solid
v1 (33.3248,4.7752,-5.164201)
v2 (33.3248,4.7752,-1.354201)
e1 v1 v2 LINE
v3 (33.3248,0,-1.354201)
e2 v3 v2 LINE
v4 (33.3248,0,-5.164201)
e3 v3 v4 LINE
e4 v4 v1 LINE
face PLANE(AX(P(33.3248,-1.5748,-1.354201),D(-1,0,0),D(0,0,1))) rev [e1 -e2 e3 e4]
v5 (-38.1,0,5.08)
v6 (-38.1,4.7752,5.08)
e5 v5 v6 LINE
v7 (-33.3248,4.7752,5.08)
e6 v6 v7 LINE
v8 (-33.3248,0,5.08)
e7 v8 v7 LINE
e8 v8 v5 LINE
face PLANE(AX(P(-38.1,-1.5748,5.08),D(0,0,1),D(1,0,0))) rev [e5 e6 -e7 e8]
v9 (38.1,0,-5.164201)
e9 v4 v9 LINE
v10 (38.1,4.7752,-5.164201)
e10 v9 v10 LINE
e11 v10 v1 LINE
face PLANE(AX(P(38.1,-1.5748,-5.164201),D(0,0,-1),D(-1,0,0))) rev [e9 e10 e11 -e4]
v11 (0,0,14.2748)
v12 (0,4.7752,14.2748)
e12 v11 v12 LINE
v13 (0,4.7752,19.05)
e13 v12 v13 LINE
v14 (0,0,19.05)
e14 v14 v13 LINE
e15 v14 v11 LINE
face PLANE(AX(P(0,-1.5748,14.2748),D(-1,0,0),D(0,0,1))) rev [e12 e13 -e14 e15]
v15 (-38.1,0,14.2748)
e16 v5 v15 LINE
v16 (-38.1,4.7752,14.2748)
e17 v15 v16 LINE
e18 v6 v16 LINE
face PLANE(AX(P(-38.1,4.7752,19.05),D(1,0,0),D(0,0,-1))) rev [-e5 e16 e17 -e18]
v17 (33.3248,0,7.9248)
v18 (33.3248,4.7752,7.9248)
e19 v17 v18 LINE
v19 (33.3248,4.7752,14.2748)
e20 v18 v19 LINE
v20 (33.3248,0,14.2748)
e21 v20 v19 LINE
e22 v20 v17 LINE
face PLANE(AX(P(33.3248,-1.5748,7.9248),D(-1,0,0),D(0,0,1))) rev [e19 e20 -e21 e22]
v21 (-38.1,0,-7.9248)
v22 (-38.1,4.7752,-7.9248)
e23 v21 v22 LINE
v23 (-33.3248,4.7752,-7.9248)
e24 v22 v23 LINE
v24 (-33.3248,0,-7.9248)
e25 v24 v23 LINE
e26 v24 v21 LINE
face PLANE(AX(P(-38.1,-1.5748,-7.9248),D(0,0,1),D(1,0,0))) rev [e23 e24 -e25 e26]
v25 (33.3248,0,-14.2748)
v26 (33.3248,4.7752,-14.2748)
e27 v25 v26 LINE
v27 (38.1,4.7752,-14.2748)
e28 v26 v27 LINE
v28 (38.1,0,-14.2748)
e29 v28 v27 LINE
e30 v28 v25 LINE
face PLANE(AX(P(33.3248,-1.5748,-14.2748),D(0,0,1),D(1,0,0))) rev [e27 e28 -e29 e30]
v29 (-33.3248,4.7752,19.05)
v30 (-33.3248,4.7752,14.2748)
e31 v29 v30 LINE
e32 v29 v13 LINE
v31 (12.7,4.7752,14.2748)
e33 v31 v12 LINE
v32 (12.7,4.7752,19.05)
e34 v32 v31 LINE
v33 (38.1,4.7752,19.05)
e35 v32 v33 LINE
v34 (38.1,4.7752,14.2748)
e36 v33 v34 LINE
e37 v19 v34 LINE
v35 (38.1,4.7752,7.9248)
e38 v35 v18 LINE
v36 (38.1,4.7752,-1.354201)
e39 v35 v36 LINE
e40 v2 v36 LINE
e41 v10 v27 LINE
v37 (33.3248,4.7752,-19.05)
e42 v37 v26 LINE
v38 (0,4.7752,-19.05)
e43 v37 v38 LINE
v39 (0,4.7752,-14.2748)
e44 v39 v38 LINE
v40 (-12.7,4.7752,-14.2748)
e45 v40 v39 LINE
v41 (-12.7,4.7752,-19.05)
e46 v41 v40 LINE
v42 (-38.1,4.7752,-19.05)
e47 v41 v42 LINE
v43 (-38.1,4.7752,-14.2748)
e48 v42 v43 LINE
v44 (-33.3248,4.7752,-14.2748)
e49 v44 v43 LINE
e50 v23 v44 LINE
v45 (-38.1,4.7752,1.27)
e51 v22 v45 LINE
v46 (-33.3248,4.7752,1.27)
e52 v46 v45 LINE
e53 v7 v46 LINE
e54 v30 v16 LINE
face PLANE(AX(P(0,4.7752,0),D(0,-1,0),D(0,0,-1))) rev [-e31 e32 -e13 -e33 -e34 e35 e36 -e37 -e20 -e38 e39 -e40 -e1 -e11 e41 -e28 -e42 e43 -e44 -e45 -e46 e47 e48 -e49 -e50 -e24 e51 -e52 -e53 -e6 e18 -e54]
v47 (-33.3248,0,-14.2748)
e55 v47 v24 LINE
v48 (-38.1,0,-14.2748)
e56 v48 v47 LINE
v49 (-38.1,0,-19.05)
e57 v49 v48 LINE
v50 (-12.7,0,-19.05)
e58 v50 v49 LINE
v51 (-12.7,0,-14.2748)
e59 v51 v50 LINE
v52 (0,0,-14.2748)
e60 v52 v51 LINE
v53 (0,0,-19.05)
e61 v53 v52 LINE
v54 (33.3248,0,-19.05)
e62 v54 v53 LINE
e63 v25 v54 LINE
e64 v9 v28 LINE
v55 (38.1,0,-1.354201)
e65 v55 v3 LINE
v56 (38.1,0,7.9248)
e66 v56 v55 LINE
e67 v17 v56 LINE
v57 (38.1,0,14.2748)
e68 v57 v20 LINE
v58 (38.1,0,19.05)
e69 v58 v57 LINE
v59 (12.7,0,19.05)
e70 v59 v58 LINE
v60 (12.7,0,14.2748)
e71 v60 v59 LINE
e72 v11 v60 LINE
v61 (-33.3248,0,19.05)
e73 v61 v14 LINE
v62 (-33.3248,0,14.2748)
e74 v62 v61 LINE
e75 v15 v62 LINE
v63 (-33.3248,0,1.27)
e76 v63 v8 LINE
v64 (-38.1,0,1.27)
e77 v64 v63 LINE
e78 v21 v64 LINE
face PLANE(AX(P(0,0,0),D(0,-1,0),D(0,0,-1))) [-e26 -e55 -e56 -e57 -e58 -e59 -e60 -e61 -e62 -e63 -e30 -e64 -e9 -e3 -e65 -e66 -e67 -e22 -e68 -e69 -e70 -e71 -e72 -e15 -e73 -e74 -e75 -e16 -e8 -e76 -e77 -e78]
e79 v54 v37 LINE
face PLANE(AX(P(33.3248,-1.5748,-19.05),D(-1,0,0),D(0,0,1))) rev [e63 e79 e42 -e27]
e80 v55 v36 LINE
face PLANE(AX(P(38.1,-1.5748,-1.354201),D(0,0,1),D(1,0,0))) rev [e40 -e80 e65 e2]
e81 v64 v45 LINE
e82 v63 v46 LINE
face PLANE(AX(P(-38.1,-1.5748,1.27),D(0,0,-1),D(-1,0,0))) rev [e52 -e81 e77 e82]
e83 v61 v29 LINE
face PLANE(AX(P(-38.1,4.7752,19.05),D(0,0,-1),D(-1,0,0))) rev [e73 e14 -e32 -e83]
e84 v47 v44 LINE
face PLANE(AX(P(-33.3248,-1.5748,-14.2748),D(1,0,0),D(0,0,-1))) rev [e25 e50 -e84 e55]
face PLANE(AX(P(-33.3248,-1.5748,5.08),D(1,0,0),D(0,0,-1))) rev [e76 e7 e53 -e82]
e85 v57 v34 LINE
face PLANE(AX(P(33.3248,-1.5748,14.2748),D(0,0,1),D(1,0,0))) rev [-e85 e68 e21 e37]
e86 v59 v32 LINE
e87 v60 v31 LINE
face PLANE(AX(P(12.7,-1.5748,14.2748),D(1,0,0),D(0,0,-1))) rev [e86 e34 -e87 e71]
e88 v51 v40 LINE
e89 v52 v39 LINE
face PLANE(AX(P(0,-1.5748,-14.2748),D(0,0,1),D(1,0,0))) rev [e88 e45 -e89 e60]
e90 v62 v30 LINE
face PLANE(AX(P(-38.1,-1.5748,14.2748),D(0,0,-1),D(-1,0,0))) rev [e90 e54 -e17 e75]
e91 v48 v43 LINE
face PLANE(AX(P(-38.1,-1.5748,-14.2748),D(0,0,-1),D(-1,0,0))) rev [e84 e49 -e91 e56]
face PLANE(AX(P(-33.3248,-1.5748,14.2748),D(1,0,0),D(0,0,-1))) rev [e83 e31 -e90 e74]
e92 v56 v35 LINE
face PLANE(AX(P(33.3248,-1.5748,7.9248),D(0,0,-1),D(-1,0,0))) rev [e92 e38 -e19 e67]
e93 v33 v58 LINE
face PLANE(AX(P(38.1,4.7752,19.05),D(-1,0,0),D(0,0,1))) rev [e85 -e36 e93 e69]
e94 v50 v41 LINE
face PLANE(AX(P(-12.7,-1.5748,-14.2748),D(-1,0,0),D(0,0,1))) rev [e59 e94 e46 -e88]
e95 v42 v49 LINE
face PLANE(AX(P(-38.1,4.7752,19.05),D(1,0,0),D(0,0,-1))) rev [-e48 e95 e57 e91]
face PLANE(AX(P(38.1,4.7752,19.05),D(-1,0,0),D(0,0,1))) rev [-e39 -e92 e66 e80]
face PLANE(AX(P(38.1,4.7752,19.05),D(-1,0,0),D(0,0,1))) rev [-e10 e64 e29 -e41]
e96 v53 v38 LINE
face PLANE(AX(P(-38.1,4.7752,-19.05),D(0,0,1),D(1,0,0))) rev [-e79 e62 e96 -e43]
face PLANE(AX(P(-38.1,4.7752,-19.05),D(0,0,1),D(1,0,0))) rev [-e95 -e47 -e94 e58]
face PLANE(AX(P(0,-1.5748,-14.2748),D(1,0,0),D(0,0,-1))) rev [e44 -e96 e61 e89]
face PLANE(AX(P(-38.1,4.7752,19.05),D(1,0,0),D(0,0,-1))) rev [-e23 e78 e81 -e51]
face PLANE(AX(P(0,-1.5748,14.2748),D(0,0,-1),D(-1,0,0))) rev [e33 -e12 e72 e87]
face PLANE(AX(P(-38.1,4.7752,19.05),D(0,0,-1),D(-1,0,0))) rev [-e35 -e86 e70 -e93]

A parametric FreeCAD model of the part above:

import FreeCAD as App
import Part
import Sketcher
from FreeCAD import Vector
Q = App.Units.Quantity

doc = App.newDocument("Part")
body = doc.addObject("PartDesign::Body", "Body")

# Sketch on XZ plane
sketch1 = body.newObject("Sketcher::SketchObject", "Sketch")
sketch1.AttachmentSupport = (doc.getObject("XZ_Plane"), [""])
sketch1.MapMode = "FlatFace"
sketch1.addGeometry([
    Part.LineSegment(Vector(-38, -19, 0), Vector(-38, 19, 0)),
    Part.LineSegment(Vector(-38, 19, 0), Vector(38, 19, 0)),
    Part.LineSegment(Vector(38, 19, 0), Vector(38, -19, 0)),
    Part.LineSegment(Vector(38, -19, 0), Vector(-38, -19, 0)),
], False)
sketch1.addConstraint([
    Sketcher.Constraint("Coincident", 0, 2, 1, 1),
    Sketcher.Constraint("Coincident", 1, 2, 2, 1),
    Sketcher.Constraint("Coincident", 2, 2, 3, 1),
    Sketcher.Constraint("Coincident", 3, 2, 0, 1),
    Sketcher.Constraint("Vertical", 0),
    Sketcher.Constraint("Horizontal", 1),
    Sketcher.Constraint("Vertical", 2),
    Sketcher.Constraint("Horizontal", 3),
    Sketcher.Constraint("Symmetric", 0, 2, 2, 2, -1, 1),
    Sketcher.Constraint("DistanceX", 1, 1, 1, 2, Q("3 in")),
    Sketcher.Constraint("DistanceY", 0, 1, 0, 2, Q("1.5 in")),
])
pad1 = body.newObject("PartDesign::Pad", "Pad")
pad1.Profile = sketch1
pad1.Length = Q("0.188 in")
pad1.Reversed = True

# Sketch on XZ plane
sketch2 = body.newObject("Sketcher::SketchObject", "Sketch001")
sketch2.AttachmentSupport = (doc.getObject("XZ_Plane"), [""])
sketch2.MapMode = "FlatFace"
sketch2.AttachmentOffset = App.Placement(Vector(0, 0, -0.188 * 25.4), App.Rotation())
sketch2.addGeometry([
    Part.LineSegment(Vector(-38.1, -14.3, 0), Vector(-38.1, -7.9, 0)),  # 0
    Part.LineSegment(Vector(-38.1, -7.9, 0), Vector(-33.3, -7.9, 0)),  # 1
    Part.LineSegment(Vector(-33.3, -7.9, 0), Vector(-33.3, -14.3, 0)),  # 2
    Part.LineSegment(Vector(-33.3, -14.3, 0), Vector(-38.1, -14.3, 0)),  # 3
    Part.LineSegment(Vector(-38.1, 14.3, 0), Vector(-38.1, 19.1, 0)),  # 4
    Part.LineSegment(Vector(-38.1, 19.1, 0), Vector(-33.3, 19.1, 0)),  # 5
    Part.LineSegment(Vector(-33.3, 19.1, 0), Vector(-33.3, 14.3, 0)),  # 6
    Part.LineSegment(Vector(-33.3, 14.3, 0), Vector(-38.1, 14.3, 0)),  # 7
    Part.LineSegment(Vector(33.3, -19.1, 0), Vector(33.3, -14.3, 0)),  # 8
    Part.LineSegment(Vector(33.3, -14.3, 0), Vector(38.1, -14.3, 0)),  # 9
    Part.LineSegment(Vector(38.1, -14.3, 0), Vector(38.1, -19.1, 0)),  # 10
    Part.LineSegment(Vector(38.1, -19.1, 0), Vector(33.3, -19.1, 0)),  # 11
    Part.LineSegment(Vector(-38.1, 1.3, 0), Vector(-38.1, 5.1, 0)),  # 12
    Part.LineSegment(Vector(-38.1, 5.1, 0), Vector(-33.3, 5.1, 0)),  # 13
    Part.LineSegment(Vector(-33.3, 5.1, 0), Vector(-33.3, 1.3, 0)),  # 14
    Part.LineSegment(Vector(-33.3, 1.3, 0), Vector(-38.1, 1.3, 0)),  # 15
    Part.LineSegment(Vector(33.3, 7.9, 0), Vector(33.3, 14.3, 0)),  # 16
    Part.LineSegment(Vector(33.3, 14.3, 0), Vector(38.1, 14.3, 0)),  # 17
    Part.LineSegment(Vector(38.1, 14.3, 0), Vector(38.1, 7.9, 0)),  # 18
    Part.LineSegment(Vector(38.1, 7.9, 0), Vector(33.3, 7.9, 0)),  # 19
    Part.LineSegment(Vector(33.3, -5.2, 0), Vector(33.3, -1.4, 0)),  # 20
    Part.LineSegment(Vector(33.3, -1.4, 0), Vector(38.1, -1.4, 0)),  # 21
    Part.LineSegment(Vector(38.1, -1.4, 0), Vector(38.1, -5.2, 0)),  # 22
    Part.LineSegment(Vector(38.1, -5.2, 0), Vector(33.3, -5.2, 0)),  # 23
    Part.LineSegment(Vector(-12.7, -19.1, 0), Vector(-12.7, -14.3, 0)),  # 24
    Part.LineSegment(Vector(-12.7, -14.3, 0), Vector(0, -14.3, 0)),  # 25
    Part.LineSegment(Vector(0, -14.3, 0), Vector(0, -19.1, 0)),  # 26
    Part.LineSegment(Vector(0, -19.1, 0), Vector(-12.7, -19.1, 0)),  # 27
    Part.LineSegment(Vector(0, 14.3, 0), Vector(0, 19.1, 0)),  # 28
    Part.LineSegment(Vector(0, 19.1, 0), Vector(12.7, 19.1, 0)),  # 29
    Part.LineSegment(Vector(12.7, 19.1, 0), Vector(12.7, 14.3, 0)),  # 30
    Part.LineSegment(Vector(12.7, 14.3, 0), Vector(0, 14.3, 0)),  # 31
], False)
sketch2.addConstraint([
    Sketcher.Constraint("Coincident", 0, 2, 1, 1),
    Sketcher.Constraint("Coincident", 1, 2, 2, 1),
    Sketcher.Constraint("Coincident", 2, 2, 3, 1),
    Sketcher.Constraint("Coincident", 3, 2, 0, 1),
    Sketcher.Constraint("Coincident", 4, 2, 5, 1),
    Sketcher.Constraint("Coincident", 5, 2, 6, 1),
    Sketcher.Constraint("Coincident", 6, 2, 7, 1),
    Sketcher.Constraint("Coincident", 7, 2, 4, 1),
    Sketcher.Constraint("Coincident", 8, 2, 9, 1),
    Sketcher.Constraint("Coincident", 9, 2, 10, 1),
    Sketcher.Constraint("Coincident", 10, 2, 11, 1),
    Sketcher.Constraint("Coincident", 11, 2, 8, 1),
    Sketcher.Constraint("Coincident", 12, 2, 13, 1),
    Sketcher.Constraint("Coincident", 13, 2, 14, 1),
    Sketcher.Constraint("Coincident", 14, 2, 15, 1),
    Sketcher.Constraint("Coincident", 15, 2, 12, 1),
    Sketcher.Constraint("Coincident", 16, 2, 17, 1),
    Sketcher.Constraint("Coincident", 17, 2, 18, 1),
    Sketcher.Constraint("Coincident", 18, 2, 19, 1),
    Sketcher.Constraint("Coincident", 19, 2, 16, 1),
    Sketcher.Constraint("Coincident", 20, 2, 21, 1),
    Sketcher.Constraint("Coincident", 21, 2, 22, 1),
    Sketcher.Constraint("Coincident", 22, 2, 23, 1),
    Sketcher.Constraint("Coincident", 23, 2, 20, 1),
    Sketcher.Constraint("Coincident", 24, 2, 25, 1),
    Sketcher.Constraint("Coincident", 25, 2, 26, 1),
    Sketcher.Constraint("Coincident", 26, 2, 27, 1),
    Sketcher.Constraint("Coincident", 27, 2, 24, 1),
    Sketcher.Constraint("Coincident", 28, 2, 29, 1),
    Sketcher.Constraint("Coincident", 29, 2, 30, 1),
    Sketcher.Constraint("Coincident", 30, 2, 31, 1),
    Sketcher.Constraint("Coincident", 31, 2, 28, 1),
    Sketcher.Constraint("Vertical", 0),
    Sketcher.Constraint("Horizontal", 1),
    Sketcher.Constraint("Vertical", 2),
    Sketcher.Constraint("Horizontal", 3),
    Sketcher.Constraint("Vertical", 4),
    Sketcher.Constraint("Horizontal", 5),
    Sketcher.Constraint("Vertical", 6),
    Sketcher.Constraint("Horizontal", 7),
    Sketcher.Constraint("Vertical", 8),
    Sketcher.Constraint("Horizontal", 9),
    Sketcher.Constraint("Vertical", 10),
    Sketcher.Constraint("Horizontal", 11),
    Sketcher.Constraint("Vertical", 12),
    Sketcher.Constraint("Horizontal", 13),
    Sketcher.Constraint("Vertical", 14),
    Sketcher.Constraint("Horizontal", 15),
    Sketcher.Constraint("Vertical", 16),
    Sketcher.Constraint("Horizontal", 17),
    Sketcher.Constraint("Vertical", 18),
    Sketcher.Constraint("Horizontal", 19),
    Sketcher.Constraint("Vertical", 20),
    Sketcher.Constraint("Horizontal", 21),
    Sketcher.Constraint("Vertical", 22),
    Sketcher.Constraint("Horizontal", 23),
    Sketcher.Constraint("Vertical", 24),
    Sketcher.Constraint("Horizontal", 25),
    Sketcher.Constraint("Vertical", 26),
    Sketcher.Constraint("Horizontal", 27),
    Sketcher.Constraint("Vertical", 28),
    Sketcher.Constraint("Horizontal", 29),
    Sketcher.Constraint("Vertical", 30),
    Sketcher.Constraint("Horizontal", 31),
    Sketcher.Constraint("Symmetric", 6, 2, 8, 2, -1, 1),
    Sketcher.Constraint("Symmetric", 4, 2, 10, 2, -1, 1),
    Sketcher.Constraint("Symmetric", 2, 2, 16, 2, -1, 1),
    Sketcher.Constraint("Symmetric", 0, 2, 18, 2, -1, 1),
    Sketcher.Constraint("Symmetric", 26, 2, 28, 2, -1, 1),
    Sketcher.Constraint("Symmetric", 24, 2, 30, 2, -1, 1),
    Sketcher.Constraint("Symmetric", 2, 2, 8, 2, -2),
    Sketcher.Constraint("PointOnObject", 25, 2, -2),
    Sketcher.Constraint("Horizontal", 9, 2, 24, 2),
    Sketcher.Constraint("Horizontal", 11, 2, 26, 2),
    Sketcher.Constraint("Vertical", 3, 2, 4, 2),
    Sketcher.Constraint("Vertical", 7, 2, 12, 2),
    Sketcher.Constraint("Vertical", 6, 2, 13, 2),
    Sketcher.Constraint("Vertical", 19, 2, 20, 2),
    Sketcher.Constraint("Vertical", 18, 2, 21, 2),
    Sketcher.Constraint("Equal", 23, 4),
    Sketcher.Constraint("Equal", 14, 20),
    Sketcher.Constraint("DistanceX", 25, 1, 25, 2, Q("0.5 in")),
    Sketcher.Constraint("DistanceX", 3, 2, 9, 2, Q("3 in")),
    Sketcher.Constraint("DistanceY", 0, 1, 0, 2, Q("0.25 in")),
    Sketcher.Constraint("DistanceY", 12, 1, 12, 2, Q("0.15 in")),
    Sketcher.Constraint("DistanceY", -1, 1, 12, 2, Q("0.2 in")),
    Sketcher.Constraint("DistanceX", 1, 1, 1, 2, Q("0.188 in")),
    Sketcher.Constraint("DistanceY", -1, 1, 4, 2, Q("0.75 in")),
    Sketcher.Constraint("DistanceY", 20, 2, -1, 1, 1.354201),
])
pocket1 = body.newObject("PartDesign::Pocket", "Pocket")
pocket1.Profile = sketch2
pocket1.Length = Q("0.25 in")
pocket1.Reversed = True

doc.recompute()
